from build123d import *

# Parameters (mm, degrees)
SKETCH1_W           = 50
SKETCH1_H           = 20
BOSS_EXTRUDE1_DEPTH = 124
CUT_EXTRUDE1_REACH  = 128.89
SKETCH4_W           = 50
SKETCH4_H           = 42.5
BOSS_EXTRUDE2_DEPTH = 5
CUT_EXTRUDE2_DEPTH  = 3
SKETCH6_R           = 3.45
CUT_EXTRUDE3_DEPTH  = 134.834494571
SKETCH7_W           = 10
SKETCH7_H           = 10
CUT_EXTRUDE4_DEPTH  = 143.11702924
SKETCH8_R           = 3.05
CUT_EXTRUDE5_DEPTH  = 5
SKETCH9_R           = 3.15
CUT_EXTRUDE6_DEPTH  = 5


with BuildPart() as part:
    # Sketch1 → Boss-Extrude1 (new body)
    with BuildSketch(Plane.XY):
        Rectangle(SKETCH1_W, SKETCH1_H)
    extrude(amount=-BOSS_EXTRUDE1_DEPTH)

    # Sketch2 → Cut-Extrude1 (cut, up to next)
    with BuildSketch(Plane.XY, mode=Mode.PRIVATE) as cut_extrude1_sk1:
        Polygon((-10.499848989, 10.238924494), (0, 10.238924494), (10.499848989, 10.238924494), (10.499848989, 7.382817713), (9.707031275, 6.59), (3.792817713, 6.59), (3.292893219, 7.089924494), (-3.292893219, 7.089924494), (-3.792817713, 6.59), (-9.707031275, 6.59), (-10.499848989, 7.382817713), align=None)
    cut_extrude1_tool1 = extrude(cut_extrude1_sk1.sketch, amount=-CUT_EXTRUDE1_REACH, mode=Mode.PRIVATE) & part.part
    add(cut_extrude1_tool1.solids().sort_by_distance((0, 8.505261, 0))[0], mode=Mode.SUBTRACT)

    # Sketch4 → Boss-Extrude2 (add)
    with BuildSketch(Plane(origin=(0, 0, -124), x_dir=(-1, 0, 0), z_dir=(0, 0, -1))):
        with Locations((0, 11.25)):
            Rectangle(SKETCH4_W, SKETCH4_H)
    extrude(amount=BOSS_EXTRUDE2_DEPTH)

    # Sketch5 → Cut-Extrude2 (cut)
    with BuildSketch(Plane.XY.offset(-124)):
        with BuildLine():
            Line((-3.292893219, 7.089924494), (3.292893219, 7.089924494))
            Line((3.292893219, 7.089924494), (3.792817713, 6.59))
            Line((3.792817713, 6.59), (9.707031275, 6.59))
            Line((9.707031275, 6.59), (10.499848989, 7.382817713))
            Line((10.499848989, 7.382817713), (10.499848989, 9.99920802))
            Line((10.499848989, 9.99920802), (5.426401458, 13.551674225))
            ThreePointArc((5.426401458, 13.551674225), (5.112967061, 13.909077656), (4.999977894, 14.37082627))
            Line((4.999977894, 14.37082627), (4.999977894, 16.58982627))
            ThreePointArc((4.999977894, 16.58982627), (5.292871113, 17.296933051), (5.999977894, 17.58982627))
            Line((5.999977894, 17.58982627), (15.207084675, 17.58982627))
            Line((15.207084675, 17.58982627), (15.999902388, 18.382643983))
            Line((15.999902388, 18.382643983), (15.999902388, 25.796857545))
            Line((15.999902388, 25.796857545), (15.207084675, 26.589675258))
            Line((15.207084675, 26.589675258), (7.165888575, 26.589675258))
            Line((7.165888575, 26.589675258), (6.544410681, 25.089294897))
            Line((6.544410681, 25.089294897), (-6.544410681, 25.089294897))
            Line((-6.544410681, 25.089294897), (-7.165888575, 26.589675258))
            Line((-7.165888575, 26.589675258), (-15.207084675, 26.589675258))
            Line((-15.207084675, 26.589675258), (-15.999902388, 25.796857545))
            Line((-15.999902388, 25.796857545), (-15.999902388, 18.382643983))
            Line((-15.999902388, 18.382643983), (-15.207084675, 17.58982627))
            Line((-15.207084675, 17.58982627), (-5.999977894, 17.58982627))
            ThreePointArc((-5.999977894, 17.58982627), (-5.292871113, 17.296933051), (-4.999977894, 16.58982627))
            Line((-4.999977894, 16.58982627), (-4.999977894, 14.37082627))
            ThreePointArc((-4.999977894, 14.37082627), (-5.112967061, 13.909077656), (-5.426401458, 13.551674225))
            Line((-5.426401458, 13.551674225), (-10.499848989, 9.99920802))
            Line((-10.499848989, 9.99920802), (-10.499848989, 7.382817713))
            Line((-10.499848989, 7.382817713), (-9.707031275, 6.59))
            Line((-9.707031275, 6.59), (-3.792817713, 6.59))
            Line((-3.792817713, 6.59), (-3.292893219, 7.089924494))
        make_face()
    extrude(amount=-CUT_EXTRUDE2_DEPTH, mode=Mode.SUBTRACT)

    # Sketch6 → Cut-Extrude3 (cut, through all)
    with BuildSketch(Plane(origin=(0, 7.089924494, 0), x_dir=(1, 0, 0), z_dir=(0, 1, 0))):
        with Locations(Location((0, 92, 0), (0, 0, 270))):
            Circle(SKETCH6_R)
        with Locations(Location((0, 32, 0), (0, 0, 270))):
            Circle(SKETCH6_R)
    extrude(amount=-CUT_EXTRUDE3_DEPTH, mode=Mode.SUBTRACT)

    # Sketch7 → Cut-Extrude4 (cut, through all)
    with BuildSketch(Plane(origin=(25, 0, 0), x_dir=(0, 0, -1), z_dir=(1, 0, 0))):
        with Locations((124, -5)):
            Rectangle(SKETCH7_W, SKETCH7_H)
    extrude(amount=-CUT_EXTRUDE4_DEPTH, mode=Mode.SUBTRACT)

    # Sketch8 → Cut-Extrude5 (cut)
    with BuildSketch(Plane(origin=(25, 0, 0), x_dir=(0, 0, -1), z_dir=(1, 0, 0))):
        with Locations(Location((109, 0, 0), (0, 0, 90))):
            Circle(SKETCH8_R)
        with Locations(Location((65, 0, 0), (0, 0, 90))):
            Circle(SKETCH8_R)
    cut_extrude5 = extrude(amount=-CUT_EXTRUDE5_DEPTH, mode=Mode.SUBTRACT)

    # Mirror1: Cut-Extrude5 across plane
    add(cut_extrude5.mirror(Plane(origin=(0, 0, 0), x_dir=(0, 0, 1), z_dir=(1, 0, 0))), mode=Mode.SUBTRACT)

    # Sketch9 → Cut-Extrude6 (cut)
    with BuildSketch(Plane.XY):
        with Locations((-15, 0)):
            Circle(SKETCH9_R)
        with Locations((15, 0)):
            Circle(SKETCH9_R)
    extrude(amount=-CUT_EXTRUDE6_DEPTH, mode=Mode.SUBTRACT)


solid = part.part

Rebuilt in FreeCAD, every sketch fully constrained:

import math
import FreeCAD as App
import Part
import Sketcher
from FreeCAD import Vector
Q = App.Units.Quantity

doc = App.newDocument("Part")
body = doc.addObject("PartDesign::Body", "Body")

sketch1 = doc.addObject("Sketcher::SketchObject", "Sketch")
body.addObject(sketch1)
sketch1.AttachmentSupport = (doc.XY_Plane, [""])
sketch1.MapMode = "FlatFace"
sketch1.addGeometry([
    Part.LineSegment(Vector(-25, 10, 0), Vector(-25, -10, 0)),
    Part.LineSegment(Vector(-25, -10, 0), Vector(25, -10, 0)),
    Part.LineSegment(Vector(25, -10, 0), Vector(25, 10, 0)),
    Part.LineSegment(Vector(25, 10, 0), Vector(-25, 10, 0)),
], False)
sketch1.addConstraint([
    Sketcher.Constraint("Coincident", 0, 2, 1, 1),
    Sketcher.Constraint("Coincident", 1, 2, 2, 1),
    Sketcher.Constraint("Coincident", 2, 2, 3, 1),
    Sketcher.Constraint("Coincident", 3, 2, 0, 1),
    Sketcher.Constraint("Vertical", 0),
    Sketcher.Constraint("Horizontal", 1),
    Sketcher.Constraint("Vertical", 2),
    Sketcher.Constraint("Horizontal", 3),
    Sketcher.Constraint("Symmetric", 0, 2, 2, 2, -1, 1),
    Sketcher.Constraint("DistanceX", 1, 1, 1, 2, 50.0),
    Sketcher.Constraint("DistanceY", 0, 2, 0, 1, 20.0),
])
pad1 = doc.addObject("PartDesign::Pad", "Pad")
body.addObject(pad1)
pad1.Profile = sketch1
pad1.Length = 124
pad1.Reversed = True

sketch2 = doc.addObject("Sketcher::SketchObject", "Sketch001")
body.addObject(sketch2)
sketch2.AttachmentSupport = (doc.XY_Plane, [""])
sketch2.MapMode = "FlatFace"
sketch2.addGeometry([
    Part.LineSegment(Vector(10.5, 10.2, 0), Vector(-10.5, 10.2, 0)),
    Part.LineSegment(Vector(-10.5, 10.2, 0), Vector(-10.5, 7.4, 0)),
    Part.LineSegment(Vector(-10.5, 7.4, 0), Vector(-9.7, 6.6, 0)),
    Part.LineSegment(Vector(-9.7, 6.6, 0), Vector(-3.8, 6.6, 0)),
    Part.LineSegment(Vector(-3.8, 6.6, 0), Vector(-3.3, 7.1, 0)),
    Part.LineSegment(Vector(-3.3, 7.1, 0), Vector(3.3, 7.1, 0)),
    Part.LineSegment(Vector(3.3, 7.1, 0), Vector(3.8, 6.6, 0)),
    Part.LineSegment(Vector(3.8, 6.6, 0), Vector(9.7, 6.6, 0)),
    Part.LineSegment(Vector(9.7, 6.6, 0), Vector(10.5, 7.4, 0)),
    Part.LineSegment(Vector(10.5, 7.4, 0), Vector(10.5, 10.2, 0)),
], False)
sketch2.addConstraint([
    Sketcher.Constraint("Coincident", 0, 2, 1, 1),
    Sketcher.Constraint("Coincident", 1, 2, 2, 1),
    Sketcher.Constraint("Coincident", 2, 2, 3, 1),
    Sketcher.Constraint("Coincident", 3, 2, 4, 1),
    Sketcher.Constraint("Coincident", 4, 2, 5, 1),
    Sketcher.Constraint("Coincident", 5, 2, 6, 1),
    Sketcher.Constraint("Coincident", 6, 2, 7, 1),
    Sketcher.Constraint("Coincident", 7, 2, 8, 1),
    Sketcher.Constraint("Coincident", 8, 2, 9, 1),
    Sketcher.Constraint("Coincident", 9, 2, 0, 1),
    Sketcher.Constraint("Horizontal", 0),
    Sketcher.Constraint("Vertical", 1),
    Sketcher.Constraint("Horizontal", 3),
    Sketcher.Constraint("Horizontal", 5),
    Sketcher.Constraint("Horizontal", 7),
    Sketcher.Constraint("Vertical", 9),
    Sketcher.Constraint("Symmetric", 3, 2, 6, 2, -2),
    Sketcher.Constraint("Symmetric", 1, 2, 8, 2, -2),
    Sketcher.Constraint("Perpendicular", 2, 4),
    Sketcher.Constraint("Perpendicular", 4, 6),
    Sketcher.Constraint("Perpendicular", 6, 8),
    Sketcher.Constraint("Equal", 3, 7),
    Sketcher.Constraint("DistanceY", -1, 1, 2, 2, 6.59),
    Sketcher.Constraint("Distance", 4, 0.707),
    Sketcher.Constraint("DistanceY", 4, 2, 0, 2, 3.149),
    Sketcher.Constraint("DistanceX", 0, 2, 0, 1, 20.999698),
    Sketcher.Constraint("DistanceX", 3, 1, 3, 2, 5.914214),
    Sketcher.Constraint("DistanceX", 5, 1, 5, 2, 6.585786),
])
pocket1 = doc.addObject("PartDesign::Pocket", "Pocket")
body.addObject(pocket1)
pocket1.Profile = sketch2
pocket1.Type = "UpToFirst"

sketch3 = doc.addObject("Sketcher::SketchObject", "Sketch002")
body.addObject(sketch3)
sketch3.AttachmentSupport = (doc.XY_Plane, [""])
sketch3.MapMode = "FlatFace"
sketch3.AttachmentOffset = App.Placement(Vector(0, 0, -124), App.Rotation())
sketch3.addGeometry([
    Part.LineSegment(Vector(25, 32, 0), Vector(25, -10, 0)),
    Part.LineSegment(Vector(25, -10, 0), Vector(-25, -10, 0)),
    Part.LineSegment(Vector(-25, -10, 0), Vector(-25, 32, 0)),
    Part.LineSegment(Vector(-25, 32, 0), Vector(25, 32, 0)),
], False)
sketch3.addConstraint([
    Sketcher.Constraint("Coincident", 0, 2, 1, 1),
    Sketcher.Constraint("Coincident", 1, 2, 2, 1),
    Sketcher.Constraint("Coincident", 2, 2, 3, 1),
    Sketcher.Constraint("Coincident", 3, 2, 0, 1),
    Sketcher.Constraint("Vertical", 0),
    Sketcher.Constraint("Horizontal", 1),
    Sketcher.Constraint("Vertical", 2),
    Sketcher.Constraint("Horizontal", 3),
    Sketcher.Constraint("DistanceX", 1, 2, 1, 1, 50.0),
    Sketcher.Constraint("DistanceY", 0, 2, 0, 1, 42.5),
    Sketcher.Constraint("DistanceX", -1, 1, 0, 2, 25.0),
    Sketcher.Constraint("DistanceY", 0, 2, -1, 1, 10.0),
])
pad2 = doc.addObject("PartDesign::Pad", "Pad001")
body.addObject(pad2)
pad2.Profile = sketch3
pad2.Length = 5
pad2.Reversed = True

sketch4 = doc.addObject("Sketcher::SketchObject", "Sketch003")
body.addObject(sketch4)
sketch4.AttachmentSupport = (doc.XY_Plane, [""])
sketch4.MapMode = "FlatFace"
sketch4.AttachmentOffset = App.Placement(Vector(0, 0, -124), App.Rotation())
sketch4.addGeometry([
    Part.LineSegment(Vector(-3.3, 7.1, 0), Vector(3.3, 7.1, 0)),
    Part.LineSegment(Vector(3.3, 7.1, 0), Vector(3.8, 6.6, 0)),
    Part.LineSegment(Vector(3.8, 6.6, 0), Vector(9.7, 6.6, 0)),
    Part.LineSegment(Vector(9.7, 6.6, 0), Vector(10.5, 7.4, 0)),
    Part.LineSegment(Vector(10.5, 7.4, 0), Vector(10.5, 10, 0)),
    Part.LineSegment(Vector(10.5, 10, 0), Vector(5.4, 13.6, 0)),
    Part.ArcOfCircle(Part.Circle(Vector(6, 14.4, 0), Vector(0, 0, 1), 1), math.radians(180), math.radians(235)),
    Part.LineSegment(Vector(5, 14.4, 0), Vector(5, 16.6, 0)),
    Part.ArcOfCircle(Part.Circle(Vector(6, 16.6, 0), Vector(0, 0, 1), 1), math.radians(90), math.radians(180)),
    Part.LineSegment(Vector(6, 17.6, 0), Vector(15.2, 17.6, 0)),
    Part.LineSegment(Vector(15.2, 17.6, 0), Vector(16, 18.4, 0)),
    Part.LineSegment(Vector(16, 18.4, 0), Vector(16, 25.8, 0)),
    Part.LineSegment(Vector(16, 25.8, 0), Vector(15.2, 26.6, 0)),
    Part.LineSegment(Vector(15.2, 26.6, 0), Vector(7.2, 26.6, 0)),
    Part.LineSegment(Vector(7.2, 26.6, 0), Vector(6.5, 25.1, 0)),
    Part.LineSegment(Vector(6.5, 25.1, 0), Vector(-6.5, 25.1, 0)),
    Part.LineSegment(Vector(-6.5, 25.1, 0), Vector(-7.2, 26.6, 0)),
    Part.LineSegment(Vector(-7.2, 26.6, 0), Vector(-15.2, 26.6, 0)),
    Part.LineSegment(Vector(-15.2, 26.6, 0), Vector(-16, 25.8, 0)),
    Part.LineSegment(Vector(-16, 25.8, 0), Vector(-16, 18.4, 0)),
    Part.LineSegment(Vector(-16, 18.4, 0), Vector(-15.2, 17.6, 0)),
    Part.LineSegment(Vector(-15.2, 17.6, 0), Vector(-6, 17.6, 0)),
    Part.ArcOfCircle(Part.Circle(Vector(-6, 16.6, 0), Vector(0, 0, 1), 1), math.radians(0), math.radians(90)),
    Part.LineSegment(Vector(-5, 16.6, 0), Vector(-5, 14.4, 0)),
    Part.ArcOfCircle(Part.Circle(Vector(-6, 14.4, 0), Vector(0, 0, 1), 1), math.radians(-55), math.radians(0)),
    Part.LineSegment(Vector(-5.4, 13.6, 0), Vector(-10.5, 10, 0)),
    Part.LineSegment(Vector(-10.5, 10, 0), Vector(-10.5, 7.4, 0)),
    Part.LineSegment(Vector(-10.5, 7.4, 0), Vector(-9.7, 6.6, 0)),
    Part.LineSegment(Vector(-9.7, 6.6, 0), Vector(-3.8, 6.6, 0)),
    Part.LineSegment(Vector(-3.8, 6.6, 0), Vector(-3.3, 7.1, 0)),
], False)
sketch4.addConstraint([
    Sketcher.Constraint("Coincident", 0, 2, 1, 1),
    Sketcher.Constraint("Coincident", 1, 2, 2, 1),
    Sketcher.Constraint("Coincident", 2, 2, 3, 1),
    Sketcher.Constraint("Coincident", 3, 2, 4, 1),
    Sketcher.Constraint("Coincident", 4, 2, 5, 1),
    Sketcher.Constraint("Tangent", 5, 2, 6, 2),
    Sketcher.Constraint("Tangent", 6, 1, 7, 1),
    Sketcher.Constraint("Tangent", 7, 2, 8, 2),
    Sketcher.Constraint("Tangent", 8, 1, 9, 1),
    Sketcher.Constraint("Coincident", 9, 2, 10, 1),
    Sketcher.Constraint("Coincident", 10, 2, 11, 1),
    Sketcher.Constraint("Coincident", 11, 2, 12, 1),
    Sketcher.Constraint("Coincident", 12, 2, 13, 1),
    Sketcher.Constraint("Coincident", 13, 2, 14, 1),
    Sketcher.Constraint("Coincident", 14, 2, 15, 1),
    Sketcher.Constraint("Coincident", 15, 2, 16, 1),
    Sketcher.Constraint("Coincident", 16, 2, 17, 1),
    Sketcher.Constraint("Coincident", 17, 2, 18, 1),
    Sketcher.Constraint("Coincident", 18, 2, 19, 1),
    Sketcher.Constraint("Coincident", 19, 2, 20, 1),
    Sketcher.Constraint("Coincident", 20, 2, 21, 1),
    Sketcher.Constraint("Tangent", 21, 2, 22, 2),
    Sketcher.Constraint("Tangent", 22, 1, 23, 1),
    Sketcher.Constraint("Tangent", 23, 2, 24, 2),
    Sketcher.Constraint("Tangent", 24, 1, 25, 1),
    Sketcher.Constraint("Coincident", 25, 2, 26, 1),
    Sketcher.Constraint("Coincident", 26, 2, 27, 1),
    Sketcher.Constraint("Coincident", 27, 2, 28, 1),
    Sketcher.Constraint("Coincident", 28, 2, 29, 1),
    Sketcher.Constraint("Coincident", 29, 2, 0, 1),
    Sketcher.Constraint("Horizontal", 0),
    Sketcher.Constraint("Horizontal", 2),
    Sketcher.Constraint("Vertical", 4),
    Sketcher.Constraint("Vertical", 7),
    Sketcher.Constraint("Horizontal", 9),
    Sketcher.Constraint("Vertical", 11),
    Sketcher.Constraint("Horizontal", 13),
    Sketcher.Constraint("Horizontal", 15),
    Sketcher.Constraint("Horizontal", 17),
    Sketcher.Constraint("Vertical", 19),
    Sketcher.Constraint("Horizontal", 21),
    Sketcher.Constraint("Vertical", 23),
    Sketcher.Constraint("Vertical", 26),
    Sketcher.Constraint("Horizontal", 28),
    Sketcher.Constraint("Equal", 6, 8),
    Sketcher.Constraint("Equal", 8, 22),
    Sketcher.Constraint("Equal", 22, 24),
    Sketcher.Constraint("Symmetric", 8, 3, 22, 3, -2),
    Sketcher.Constraint("Symmetric", 13, 2, 16, 2, -2),
    Sketcher.Constraint("Symmetric", 11, 2, 18, 2, -2),
    Sketcher.Constraint("Symmetric", 5, 2, 24, 1, -2),
    Sketcher.Constraint("Symmetric", 3, 2, 26, 2, -2),
    Sketcher.Constraint("Symmetric", 2, 2, 27, 2, -2),
    Sketcher.Constraint("Perpendicular", 1, 3),
    Sketcher.Constraint("Parallel", 3, 10),
    Sketcher.Constraint("Perpendicular", 10, 12),
    Sketcher.Constraint("Perpendicular", 12, 18),
    Sketcher.Constraint("Perpendicular", 18, 20),
    Sketcher.Constraint("Parallel", 20, 27),
    Sketcher.Constraint("Perpendicular", 27, 29),
    Sketcher.Constraint("Horizontal", 10, 2, 19, 2),
    Sketcher.Constraint("Vertical", 9, 2, 12, 2),
    Sketcher.Constraint("Equal", 2, 28),
    Sketcher.Constraint("Equal", 3, 10),
    Sketcher.Constraint("Equal", 14, 16),
    Sketcher.Constraint("Radius", 6, 1.0),
    Sketcher.Constraint("Angle", 5, Q("145 deg")),
    Sketcher.Constraint("Angle", 14, Q("-112.5 deg")),
    Sketcher.Constraint("DistanceY", 7, 1, 7, 2, 2.219),
    Sketcher.Constraint("DistanceY", -1, 1, 1, 2, 6.59),
    Sketcher.Constraint("Distance", 1, 0.707),
    Sketcher.Constraint("Distance", 14, 1.624),
    Sketcher.Constraint("DistanceX", 15, 2, 15, 1, 13.088821),
    Sketcher.Constraint("DistanceY", 4, 1, 4, 2, 2.61639),
    Sketcher.Constraint("DistanceX", -1, 1, 5, 2, 5.426401),
    Sketcher.Constraint("DistanceY", 0, 2, 6, 3, 7.280902),
    Sketcher.Constraint("DistanceX", 0, 1, 0, 2, 6.585786),
    Sketcher.Constraint("DistanceX", 2, 1, 2, 2, 5.914214),
    Sketcher.Constraint("DistanceX", 9, 1, 9, 2, 9.207107),
    Sketcher.Constraint("DistanceY", 11, 1, 11, 2, 7.414214),
])
pocket2 = doc.addObject("PartDesign::Pocket", "Pocket001")
body.addObject(pocket2)
pocket2.Profile = sketch4
pocket2.Length = 3

sketch5 = doc.addObject("Sketcher::SketchObject", "Sketch004")
body.addObject(sketch5)
sketch5.AttachmentSupport = (doc.XZ_Plane, [""])
sketch5.MapMode = "FlatFace"
sketch5.AttachmentOffset = App.Placement(Vector(0, 0, -7.089924), App.Rotation())
sketch5.addGeometry([
    Part.Circle(Vector(0, -92, 0), Vector(0, 0, 1), 3.5),
    Part.Circle(Vector(0, -32, 0), Vector(0, 0, 1), 3.5),
], False)
sketch5.addConstraint([
    Sketcher.Constraint("Equal", 0, 1),
    Sketcher.Constraint("PointOnObject", 0, 3, -2),
    Sketcher.Constraint("PointOnObject", 1, 3, -2),
    Sketcher.Constraint("Diameter", 0, 6.9),
    Sketcher.Constraint("DistanceY", 0, 3, -1, 1, 92.0),
    Sketcher.Constraint("DistanceY", 1, 3, -1, 1, 32.0),
])
pocket3 = doc.addObject("PartDesign::Pocket", "Pocket002")
body.addObject(pocket3)
pocket3.Profile = sketch5
pocket3.Type = "ThroughAll"
pocket3.Reversed = True

sketch6 = doc.addObject("Sketcher::SketchObject", "Sketch005")
body.addObject(sketch6)
sketch6.AttachmentSupport = (doc.YZ_Plane, [""])
sketch6.MapMode = "FlatFace"
sketch6.AttachmentOffset = App.Placement(Vector(0, 0, 25), App.Rotation())
sketch6.addGeometry([
    Part.LineSegment(Vector(0, -119, 0), Vector(-10, -119, 0)),
    Part.LineSegment(Vector(-10, -119, 0), Vector(-10, -129, 0)),
    Part.LineSegment(Vector(-10, -129, 0), Vector(0, -129, 0)),
    Part.LineSegment(Vector(0, -129, 0), Vector(0, -119, 0)),
], False)
sketch6.addConstraint([
    Sketcher.Constraint("Coincident", 0, 2, 1, 1),
    Sketcher.Constraint("Coincident", 1, 2, 2, 1),
    Sketcher.Constraint("Coincident", 2, 2, 3, 1),
    Sketcher.Constraint("Coincident", 3, 2, 0, 1),
    Sketcher.Constraint("Horizontal", 0),
    Sketcher.Constraint("Vertical", 1),
    Sketcher.Constraint("Horizontal", 2),
    Sketcher.Constraint("Vertical", 3),
    Sketcher.Constraint("PointOnObject", 2, 2, -2),
    Sketcher.Constraint("Equal", 2, 1),
    Sketcher.Constraint("DistanceX", 0, 2, 0, 1, 10.0),
    Sketcher.Constraint("DistanceY", 0, 2, -1, 1, 119.0),
])
pocket4 = doc.addObject("PartDesign::Pocket", "Pocket003")
body.addObject(pocket4)
pocket4.Profile = sketch6
pocket4.Type = "ThroughAll"

sketch7 = doc.addObject("Sketcher::SketchObject", "Sketch006")
body.addObject(sketch7)
sketch7.AttachmentSupport = (doc.YZ_Plane, [""])
sketch7.MapMode = "FlatFace"
sketch7.AttachmentOffset = App.Placement(Vector(0, 0, 25), App.Rotation())
sketch7.addGeometry([
    Part.Circle(Vector(0, -109, 0), Vector(0, 0, 1), 3),
    Part.Circle(Vector(0, -65, 0), Vector(0, 0, 1), 3),
], False)
sketch7.addConstraint([
    Sketcher.Constraint("Equal", 0, 1),
    Sketcher.Constraint("PointOnObject", 0, 3, -2),
    Sketcher.Constraint("PointOnObject", 1, 3, -2),
    Sketcher.Constraint("Diameter", 0, 6.1),
    Sketcher.Constraint("DistanceY", 0, 3, -1, 1, 109.0),
    Sketcher.Constraint("DistanceY", 1, 3, -1, 1, 65.0),
])
pocket5 = doc.addObject("PartDesign::Pocket", "Pocket004")
body.addObject(pocket5)
pocket5.Profile = sketch7
pocket5.Length = 5
doc.recompute()

mirrored = doc.addObject("PartDesign::Mirrored", "Mirrored")
body.addObject(mirrored)
mirrored.Originals = [pocket5]
mirrored.MirrorPlane = (doc.YZ_Plane, [""])
body.Tip = mirrored

sketch8 = doc.addObject("Sketcher::SketchObject", "Sketch007")
body.addObject(sketch8)
sketch8.AttachmentSupport = (doc.XY_Plane, [""])
sketch8.MapMode = "FlatFace"
sketch8.addGeometry([
    Part.Circle(Vector(-15, 0, 0), Vector(0, 0, 1), 3.1),
    Part.Circle(Vector(15, 0, 0), Vector(0, 0, 1), 3.1),
], False)
sketch8.addConstraint([
    Sketcher.Constraint("Equal", 0, 1),
    Sketcher.Constraint("Symmetric", 0, 3, 1, 3, -1, 1),
    Sketcher.Constraint("PointOnObject", 0, 3, -1),
    Sketcher.Constraint("Diameter", 0, 6.3),
    Sketcher.Constraint("DistanceX", 0, 3, -1, 1, 15.0),
])
pocket6 = doc.addObject("PartDesign::Pocket", "Pocket005")
body.addObject(pocket6)
pocket6.Profile = sketch8
pocket6.Length = 5

doc.recompute()
